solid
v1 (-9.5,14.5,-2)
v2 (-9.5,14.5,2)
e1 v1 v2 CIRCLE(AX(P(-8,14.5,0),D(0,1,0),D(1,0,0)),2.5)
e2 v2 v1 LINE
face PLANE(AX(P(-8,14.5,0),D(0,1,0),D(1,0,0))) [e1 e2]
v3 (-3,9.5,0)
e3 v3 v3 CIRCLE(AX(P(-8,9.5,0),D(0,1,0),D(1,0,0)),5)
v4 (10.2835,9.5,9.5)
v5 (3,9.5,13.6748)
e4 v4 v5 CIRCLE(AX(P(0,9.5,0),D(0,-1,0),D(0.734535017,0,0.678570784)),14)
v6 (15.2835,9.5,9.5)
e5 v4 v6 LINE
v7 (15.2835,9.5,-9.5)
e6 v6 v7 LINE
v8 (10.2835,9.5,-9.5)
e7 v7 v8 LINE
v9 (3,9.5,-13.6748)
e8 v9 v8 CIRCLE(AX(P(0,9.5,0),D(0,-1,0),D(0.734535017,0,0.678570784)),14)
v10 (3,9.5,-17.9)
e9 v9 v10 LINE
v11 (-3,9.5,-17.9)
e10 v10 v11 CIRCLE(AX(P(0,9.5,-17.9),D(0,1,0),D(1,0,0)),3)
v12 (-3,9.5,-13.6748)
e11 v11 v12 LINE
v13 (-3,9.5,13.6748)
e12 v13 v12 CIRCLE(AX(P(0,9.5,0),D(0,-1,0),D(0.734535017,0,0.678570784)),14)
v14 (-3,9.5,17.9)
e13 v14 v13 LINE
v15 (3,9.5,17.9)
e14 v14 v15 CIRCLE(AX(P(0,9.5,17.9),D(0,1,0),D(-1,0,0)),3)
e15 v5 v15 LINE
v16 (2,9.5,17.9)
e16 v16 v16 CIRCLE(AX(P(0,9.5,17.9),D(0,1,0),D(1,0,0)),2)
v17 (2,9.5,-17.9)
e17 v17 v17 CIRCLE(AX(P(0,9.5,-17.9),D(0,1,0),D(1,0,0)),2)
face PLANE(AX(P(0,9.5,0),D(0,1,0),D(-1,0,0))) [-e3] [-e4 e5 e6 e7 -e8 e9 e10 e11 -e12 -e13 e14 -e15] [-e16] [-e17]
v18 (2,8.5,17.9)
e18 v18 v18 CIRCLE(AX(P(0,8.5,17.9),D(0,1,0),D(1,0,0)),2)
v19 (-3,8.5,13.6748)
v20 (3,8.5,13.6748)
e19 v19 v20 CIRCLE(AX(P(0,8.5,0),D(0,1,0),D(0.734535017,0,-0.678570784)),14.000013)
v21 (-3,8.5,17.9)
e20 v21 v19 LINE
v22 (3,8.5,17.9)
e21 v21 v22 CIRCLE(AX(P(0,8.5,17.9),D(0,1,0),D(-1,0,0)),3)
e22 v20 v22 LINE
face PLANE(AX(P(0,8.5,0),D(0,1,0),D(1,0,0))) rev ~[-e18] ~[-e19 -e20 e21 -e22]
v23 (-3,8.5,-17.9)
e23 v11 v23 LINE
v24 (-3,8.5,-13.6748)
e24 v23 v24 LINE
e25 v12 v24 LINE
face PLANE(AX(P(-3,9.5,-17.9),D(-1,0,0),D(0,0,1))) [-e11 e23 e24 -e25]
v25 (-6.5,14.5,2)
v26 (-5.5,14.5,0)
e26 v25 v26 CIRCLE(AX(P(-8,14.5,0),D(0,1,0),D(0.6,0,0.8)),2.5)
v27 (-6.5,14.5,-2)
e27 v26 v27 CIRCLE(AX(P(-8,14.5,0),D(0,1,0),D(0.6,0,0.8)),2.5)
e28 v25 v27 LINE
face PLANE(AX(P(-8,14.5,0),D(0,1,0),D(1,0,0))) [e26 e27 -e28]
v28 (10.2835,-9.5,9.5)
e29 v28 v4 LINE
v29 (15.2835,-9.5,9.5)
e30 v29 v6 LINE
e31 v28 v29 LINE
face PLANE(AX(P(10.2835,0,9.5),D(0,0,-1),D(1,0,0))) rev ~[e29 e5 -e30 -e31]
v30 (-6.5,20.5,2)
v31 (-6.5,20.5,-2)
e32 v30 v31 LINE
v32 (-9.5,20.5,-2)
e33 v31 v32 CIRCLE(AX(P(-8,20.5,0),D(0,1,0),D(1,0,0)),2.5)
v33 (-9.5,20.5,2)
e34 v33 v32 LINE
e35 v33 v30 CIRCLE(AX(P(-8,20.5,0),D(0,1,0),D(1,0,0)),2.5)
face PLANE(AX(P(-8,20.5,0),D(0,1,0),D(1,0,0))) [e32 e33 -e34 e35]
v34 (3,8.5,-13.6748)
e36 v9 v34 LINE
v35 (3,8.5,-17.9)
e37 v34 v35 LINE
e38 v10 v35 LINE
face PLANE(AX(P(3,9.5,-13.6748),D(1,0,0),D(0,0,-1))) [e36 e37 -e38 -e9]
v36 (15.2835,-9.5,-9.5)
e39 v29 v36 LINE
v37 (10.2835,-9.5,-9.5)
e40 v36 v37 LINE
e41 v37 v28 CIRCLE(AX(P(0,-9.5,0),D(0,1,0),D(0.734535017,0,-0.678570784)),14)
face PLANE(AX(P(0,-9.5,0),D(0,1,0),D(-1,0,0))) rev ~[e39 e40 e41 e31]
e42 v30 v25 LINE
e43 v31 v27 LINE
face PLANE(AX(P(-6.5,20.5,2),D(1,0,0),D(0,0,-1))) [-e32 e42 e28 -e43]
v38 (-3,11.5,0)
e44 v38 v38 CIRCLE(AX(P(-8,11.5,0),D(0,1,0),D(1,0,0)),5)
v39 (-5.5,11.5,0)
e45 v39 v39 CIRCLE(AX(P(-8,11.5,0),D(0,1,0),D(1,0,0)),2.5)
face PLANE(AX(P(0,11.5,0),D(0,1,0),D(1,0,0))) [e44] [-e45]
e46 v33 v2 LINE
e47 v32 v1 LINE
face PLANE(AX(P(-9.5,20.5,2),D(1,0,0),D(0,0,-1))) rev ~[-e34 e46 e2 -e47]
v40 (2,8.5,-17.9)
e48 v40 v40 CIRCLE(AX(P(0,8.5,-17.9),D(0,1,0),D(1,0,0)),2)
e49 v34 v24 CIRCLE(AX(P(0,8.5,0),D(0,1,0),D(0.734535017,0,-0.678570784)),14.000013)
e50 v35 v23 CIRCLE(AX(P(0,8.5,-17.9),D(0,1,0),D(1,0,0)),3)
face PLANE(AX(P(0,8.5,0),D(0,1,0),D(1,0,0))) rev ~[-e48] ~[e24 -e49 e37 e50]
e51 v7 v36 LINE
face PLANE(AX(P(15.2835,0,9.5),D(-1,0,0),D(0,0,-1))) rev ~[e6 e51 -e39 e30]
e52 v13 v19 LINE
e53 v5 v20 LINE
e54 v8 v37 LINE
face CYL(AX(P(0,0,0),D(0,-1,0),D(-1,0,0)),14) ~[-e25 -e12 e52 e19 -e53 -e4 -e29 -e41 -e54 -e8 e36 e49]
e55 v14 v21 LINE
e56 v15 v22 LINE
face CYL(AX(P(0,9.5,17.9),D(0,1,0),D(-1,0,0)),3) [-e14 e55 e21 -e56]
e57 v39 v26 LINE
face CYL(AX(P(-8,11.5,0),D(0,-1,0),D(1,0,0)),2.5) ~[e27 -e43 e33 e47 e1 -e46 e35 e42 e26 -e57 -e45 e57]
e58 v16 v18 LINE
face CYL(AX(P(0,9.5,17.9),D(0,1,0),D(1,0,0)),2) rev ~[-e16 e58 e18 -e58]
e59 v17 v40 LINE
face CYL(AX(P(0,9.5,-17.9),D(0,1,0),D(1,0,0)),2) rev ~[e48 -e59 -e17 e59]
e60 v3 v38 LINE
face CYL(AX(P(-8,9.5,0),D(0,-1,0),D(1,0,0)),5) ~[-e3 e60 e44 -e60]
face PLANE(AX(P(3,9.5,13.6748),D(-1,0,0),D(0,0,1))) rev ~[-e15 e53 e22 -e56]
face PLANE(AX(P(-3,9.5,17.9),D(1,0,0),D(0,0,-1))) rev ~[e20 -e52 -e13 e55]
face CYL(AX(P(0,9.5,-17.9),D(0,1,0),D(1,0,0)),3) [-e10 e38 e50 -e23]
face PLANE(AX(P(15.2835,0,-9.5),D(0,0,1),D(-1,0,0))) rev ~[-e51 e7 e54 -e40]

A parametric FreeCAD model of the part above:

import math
import FreeCAD as App
import Part
import Sketcher

doc = App.newDocument("Part")
params = doc.addObject("Spreadsheet::Sheet", "Params")
for row, (alias, value) in enumerate([
    ("sketch1_radius", "14 mm"),
    ("sketch1_width", "5 mm"),
    ("sketch1_height", "19 mm"),
    ("pad1_length", "19 mm"),
    ("sketch2_diameter", "4 mm"),
    ("sketch2_radius", "3 mm"),
    ("sketch2_radius2", "14 mm"),
    ("pad2_length", "1 mm"),
    ("sketch3_diameter", "10 mm"),
    ("pad3_length", "2 mm"),
    ("sketch4_diameter", "5 mm"),
    ("pad4_length", "9 mm"),
    ("sketch5_radius", "2.5 mm"),
    ("pocket1_length", "6 mm"),
], start=1):
    params.set(f"A{row}", alias)
    params.set(f"B{row}", "=" + value)
    params.setAlias(f"B{row}", alias)

body = doc.addObject("PartDesign::Body", "Body")

sketch1 = body.newObject("Sketcher::SketchObject", "Sketch")
sketch1.AttachmentSupport = (doc.getObject("XZ_Plane"), [""])
sketch1.MapMode = "FlatFace"
sketch1.addGeometry([
    Part.ArcOfCircle(Part.Circle(App.Vector(0, 0, 0), App.Vector(0, 0, 1), 14), math.radians(43), math.radians(317)),
    Part.LineSegment(App.Vector(10, 10, 0), App.Vector(15, 10, 0)),
    Part.LineSegment(App.Vector(15, 10, 0), App.Vector(15, -10, 0)),
    Part.LineSegment(App.Vector(15, -10, 0), App.Vector(10, -10, 0)),
], False)
sketch1.addConstraint([
    Sketcher.Constraint("Coincident", 0, 1, 1, 1),
    Sketcher.Constraint("Coincident", 1, 2, 2, 1),
    Sketcher.Constraint("Coincident", 2, 2, 3, 1),
    Sketcher.Constraint("Coincident", 3, 2, 0, 2),
    Sketcher.Constraint("Horizontal", 1),
    Sketcher.Constraint("Vertical", 2),
    Sketcher.Constraint("Horizontal", 3),
    Sketcher.Constraint("Coincident", 0, 3, -1, 1),
    Sketcher.Constraint("Vertical", 0, 1, 3, 2),
    Sketcher.Constraint("Radius", 0, 14.0),
    Sketcher.Constraint("DistanceX", 1, 1, 1, 2, 5.0),
    Sketcher.Constraint("DistanceY", 2, 2, 2, 1, 19.0),
])
sketch1.setExpression("Constraints[9]", "Params.sketch1_radius")
sketch1.setExpression("Constraints[10]", "Params.sketch1_width")
sketch1.setExpression("Constraints[11]", "Params.sketch1_height")
pad1 = body.newObject("PartDesign::Pad", "Pad")
pad1.Profile = sketch1
pad1.setExpression("Length", "Params.pad1_length")
pad1.Midplane = True

sketch2 = body.newObject("Sketcher::SketchObject", "Sketch001")
sketch2.AttachmentSupport = (doc.getObject("XZ_Plane"), [""])
sketch2.MapMode = "FlatFace"
sketch2.AttachmentOffset = App.Placement(App.Vector(0, 0, -9.5), App.Rotation())
sketch2.addGeometry([
    Part.ArcOfCircle(Part.Circle(App.Vector(0, 0, 0), App.Vector(0, 0, 1), 14), math.radians(78), math.radians(102)),
    Part.LineSegment(App.Vector(-3, 13.7, 0), App.Vector(-3, 17.9, 0)),
    Part.ArcOfCircle(Part.Circle(App.Vector(0, 17.9, 0), App.Vector(0, 0, 1), 3), math.radians(0), math.radians(180)),
    Part.LineSegment(App.Vector(3, 17.9, 0), App.Vector(3, 13.7, 0)),
    Part.Circle(App.Vector(0, 17.9, 0), App.Vector(0, 0, 1), 2),
    Part.ArcOfCircle(Part.Circle(App.Vector(0, 0, 0), App.Vector(0, 0, 1), 14), math.radians(-102), math.radians(-78)),
    Part.LineSegment(App.Vector(3, -13.7, 0), App.Vector(3, -17.9, 0)),
    Part.ArcOfCircle(Part.Circle(App.Vector(0, -17.9, 0), App.Vector(0, 0, 1), 3), math.radians(180), math.radians(360)),
    Part.LineSegment(App.Vector(-3, -17.9, 0), App.Vector(-3, -13.7, 0)),
    Part.Circle(App.Vector(0, -17.9, 0), App.Vector(0, 0, 1), 2),
], False)
sketch2.addConstraint([
    Sketcher.Constraint("Coincident", 0, 2, 1, 1),
    Sketcher.Constraint("Tangent", 1, 2, 2, 2),
    Sketcher.Constraint("Tangent", 2, 1, 3, 1),
    Sketcher.Constraint("Coincident", 3, 2, 0, 1),
    Sketcher.Constraint("Coincident", 5, 2, 6, 1),
    Sketcher.Constraint("Tangent", 6, 2, 7, 2),
    Sketcher.Constraint("Tangent", 7, 1, 8, 1),
    Sketcher.Constraint("Coincident", 8, 2, 5, 1),
    Sketcher.Constraint("Vertical", 1),
    Sketcher.Constraint("Vertical", 3),
    Sketcher.Constraint("Vertical", 6),
    Sketcher.Constraint("Vertical", 8),
    Sketcher.Constraint("Coincident", 0, 3, -1, 1),
    Sketcher.Constraint("Coincident", 5, 3, -1, 1),
    Sketcher.Constraint("Coincident", 4, 3, 2, 3),
    Sketcher.Constraint("Coincident", 9, 3, 7, 3),
    Sketcher.Constraint("Equal", 0, 5),
    Sketcher.Constraint("Equal", 2, 7),
    Sketcher.Constraint("Equal", 4, 9),
    Sketcher.Constraint("Symmetric", 2, 3, 7, 3, -1, 1),
    Sketcher.Constraint("PointOnObject", 2, 3, -2),
    Sketcher.Constraint("Diameter", 4, 4.0),
    Sketcher.Constraint("Radius", 2, 3.0),
    Sketcher.Constraint("Radius", 0, 14.0),
    Sketcher.Constraint("DistanceY", -1, 1, 2, 3, 17.9),
])
sketch2.setExpression("Constraints[21]", "Params.sketch2_diameter")
sketch2.setExpression("Constraints[22]", "Params.sketch2_radius")
sketch2.setExpression("Constraints[23]", "Params.sketch2_radius2")
pad2 = body.newObject("PartDesign::Pad", "Pad001")
pad2.Profile = sketch2
pad2.setExpression("Length", "Params.pad2_length")

sketch3 = body.newObject("Sketcher::SketchObject", "Sketch002")
sketch3.AttachmentSupport = (doc.getObject("XZ_Plane"), [""])
sketch3.MapMode = "FlatFace"
sketch3.AttachmentOffset = App.Placement(App.Vector(0, 0, -9.5), App.Rotation())
sketch3.addGeometry(Part.Circle(App.Vector(-8, 0, 0), App.Vector(0, 0, 1), 5), False)
sketch3.addConstraint([
    Sketcher.Constraint("PointOnObject", 0, 3, -1),
    Sketcher.Constraint("Diameter", 0, 10.0),
    Sketcher.Constraint("DistanceX", 0, 3, -1, 1, 8.0),
])
sketch3.setExpression("Constraints[1]", "Params.sketch3_diameter")
pad3 = body.newObject("PartDesign::Pad", "Pad002")
pad3.Profile = sketch3
pad3.setExpression("Length", "Params.pad3_length")
pad3.Reversed = True

sketch4 = body.newObject("Sketcher::SketchObject", "Sketch003")
sketch4.AttachmentSupport = (doc.getObject("XZ_Plane"), [""])
sketch4.MapMode = "FlatFace"
sketch4.AttachmentOffset = App.Placement(App.Vector(0, 0, -11.5), App.Rotation())
sketch4.addGeometry(Part.Circle(App.Vector(-8, 0, 0), App.Vector(0, 0, 1), 2.5), False)
sketch4.addConstraint([
    Sketcher.Constraint("PointOnObject", 0, 3, -1),
    Sketcher.Constraint("Diameter", 0, 5.0),
    Sketcher.Constraint("DistanceX", 0, 3, -1, 1, 8.0),
])
sketch4.setExpression("Constraints[1]", "Params.sketch4_diameter")
pad4 = body.newObject("PartDesign::Pad", "Pad003")
pad4.Profile = sketch4
pad4.setExpression("Length", "Params.pad4_length")
pad4.Reversed = True

sketch5 = body.newObject("Sketcher::SketchObject", "Sketch004")
sketch5.AttachmentSupport = (doc.getObject("XZ_Plane"), [""])
sketch5.MapMode = "FlatFace"
sketch5.AttachmentOffset = App.Placement(App.Vector(0, 0, -20.5), App.Rotation())
sketch5.addGeometry([
    Part.ArcOfCircle(Part.Circle(App.Vector(-8, 0, 0), App.Vector(0, 0, 1), 2.5), math.radians(-53), math.radians(53)),
    Part.LineSegment(App.Vector(-6.5, -2, 0), App.Vector(-6.5, 2, 0)),
    Part.LineSegment(App.Vector(-9.5, 2, 0), App.Vector(-9.5, -2, 0)),
    Part.ArcOfCircle(Part.Circle(App.Vector(-8, 0, 0), App.Vector(0, 0, 1), 2.5), math.radians(127), math.radians(233)),
], False)
sketch5.addConstraint([
    Sketcher.Constraint("Coincident", 0, 1, 1, 1),
    Sketcher.Constraint("Coincident", 1, 2, 0, 2),
    Sketcher.Constraint("Coincident", 2, 1, 3, 1),
    Sketcher.Constraint("Coincident", 3, 2, 2, 2),
    Sketcher.Constraint("Vertical", 1),
    Sketcher.Constraint("Vertical", 2),
    Sketcher.Constraint("Coincident", 3, 3, 0, 3),
    Sketcher.Constraint("Equal", 0, 3),
    Sketcher.Constraint("PointOnObject", 0, 3, -1),
    Sketcher.Constraint("Horizontal", 1, 2, 2, 1),
    Sketcher.Constraint("DistanceX", 2, 1, 1, 2, 3.0),
    Sketcher.Constraint("Radius", 0, 2.5),
    Sketcher.Constraint("DistanceX", 0, 3, -1, 1, 8.0),
])
sketch5.setExpression("Constraints[11]", "Params.sketch5_radius")
pocket1 = body.newObject("PartDesign::Pocket", "Pocket")
pocket1.Profile = sketch5
pocket1.setExpression("Length", "Params.pocket1_length")
pocket1.Reversed = True

doc.recompute()
